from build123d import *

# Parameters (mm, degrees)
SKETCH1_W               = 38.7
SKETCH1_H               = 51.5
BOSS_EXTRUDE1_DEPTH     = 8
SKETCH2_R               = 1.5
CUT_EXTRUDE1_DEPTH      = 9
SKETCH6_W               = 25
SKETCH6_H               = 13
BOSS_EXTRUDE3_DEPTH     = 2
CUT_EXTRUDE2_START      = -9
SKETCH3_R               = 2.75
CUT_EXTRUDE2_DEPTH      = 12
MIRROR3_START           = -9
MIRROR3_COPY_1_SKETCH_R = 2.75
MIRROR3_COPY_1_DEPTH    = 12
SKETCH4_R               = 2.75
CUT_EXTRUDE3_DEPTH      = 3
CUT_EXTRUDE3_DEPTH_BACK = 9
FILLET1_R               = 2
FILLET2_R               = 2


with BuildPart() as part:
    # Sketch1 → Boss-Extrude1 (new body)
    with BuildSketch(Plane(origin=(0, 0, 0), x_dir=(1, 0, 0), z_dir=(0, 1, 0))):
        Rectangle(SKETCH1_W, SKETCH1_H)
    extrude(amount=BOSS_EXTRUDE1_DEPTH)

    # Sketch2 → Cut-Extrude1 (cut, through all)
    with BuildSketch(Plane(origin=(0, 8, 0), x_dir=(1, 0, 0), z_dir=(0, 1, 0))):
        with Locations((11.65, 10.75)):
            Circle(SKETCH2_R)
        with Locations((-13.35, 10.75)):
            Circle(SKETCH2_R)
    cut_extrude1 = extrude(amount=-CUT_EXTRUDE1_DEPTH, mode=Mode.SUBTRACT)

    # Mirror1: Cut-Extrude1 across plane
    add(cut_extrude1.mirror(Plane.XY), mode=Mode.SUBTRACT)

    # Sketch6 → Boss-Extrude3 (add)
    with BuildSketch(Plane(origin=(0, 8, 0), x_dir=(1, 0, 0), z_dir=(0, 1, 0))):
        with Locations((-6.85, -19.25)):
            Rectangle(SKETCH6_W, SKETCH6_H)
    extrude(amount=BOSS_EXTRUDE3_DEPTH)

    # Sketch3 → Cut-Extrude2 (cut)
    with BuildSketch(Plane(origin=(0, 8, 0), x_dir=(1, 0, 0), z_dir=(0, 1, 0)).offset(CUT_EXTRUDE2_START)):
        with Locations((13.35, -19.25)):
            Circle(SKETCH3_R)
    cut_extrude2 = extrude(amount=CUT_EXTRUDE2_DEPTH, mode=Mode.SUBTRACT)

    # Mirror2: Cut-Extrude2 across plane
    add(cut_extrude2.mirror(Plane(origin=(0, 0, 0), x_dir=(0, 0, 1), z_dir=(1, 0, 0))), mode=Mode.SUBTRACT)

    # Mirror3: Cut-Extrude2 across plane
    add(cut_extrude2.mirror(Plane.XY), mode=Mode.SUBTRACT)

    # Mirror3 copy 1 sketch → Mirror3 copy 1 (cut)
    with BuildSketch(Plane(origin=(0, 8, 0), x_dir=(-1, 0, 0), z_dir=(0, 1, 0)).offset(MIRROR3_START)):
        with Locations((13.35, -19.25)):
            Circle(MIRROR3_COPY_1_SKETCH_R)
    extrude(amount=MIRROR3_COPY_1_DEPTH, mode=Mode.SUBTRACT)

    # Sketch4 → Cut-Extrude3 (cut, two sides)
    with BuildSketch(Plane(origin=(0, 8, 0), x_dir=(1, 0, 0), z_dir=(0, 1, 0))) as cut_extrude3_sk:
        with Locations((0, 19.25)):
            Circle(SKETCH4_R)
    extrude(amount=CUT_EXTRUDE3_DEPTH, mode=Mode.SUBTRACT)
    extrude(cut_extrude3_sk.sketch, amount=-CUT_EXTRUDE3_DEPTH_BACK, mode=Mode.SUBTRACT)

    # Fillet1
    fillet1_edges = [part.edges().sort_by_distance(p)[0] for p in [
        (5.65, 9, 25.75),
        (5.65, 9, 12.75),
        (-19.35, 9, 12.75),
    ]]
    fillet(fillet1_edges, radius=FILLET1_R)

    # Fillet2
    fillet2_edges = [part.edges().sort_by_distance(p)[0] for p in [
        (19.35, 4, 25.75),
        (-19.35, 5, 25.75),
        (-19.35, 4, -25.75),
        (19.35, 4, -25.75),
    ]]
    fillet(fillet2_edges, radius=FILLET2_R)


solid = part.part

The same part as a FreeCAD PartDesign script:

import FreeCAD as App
import Part
import Sketcher

V = App.Vector
Q = App.Units.Quantity


def edges_at(feature, points):
    """Names of the edges that pass closest to the given points."""
    edges = feature.Shape.Edges
    near = lambda p: min(range(len(edges)), key=lambda i: edges[i].distToShape(Part.Vertex(*p))[0])
    return sorted({f"Edge{near(p) + 1}" for p in points})


def add_polygon(sketch, points):
    """Adds a closed chain of lines whose ends are joined by coincident constraints."""
    first, n = sketch.GeometryCount, len(points)
    for a, b in zip(points, points[1:] + points[:1]):
        sketch.addGeometry(Part.LineSegment(App.Vector(*a, 0), App.Vector(*b, 0)), False)
    for i in range(n):
        sketch.addConstraint(Sketcher.Constraint("Coincident", first + i, 2, first + (i + 1) % n, 1))

doc = App.newDocument("Part")
body = doc.addObject("PartDesign::Body", "Body")

sketch1 = body.newObject("Sketcher::SketchObject", "Sketch")
sketch1.AttachmentSupport = (doc.getObject("XZ_Plane"), [""])
sketch1.MapMode = "FlatFace"
add_polygon(sketch1, [(-19, -26), (-19, 26), (19, 26), (19, -26)])
sketch1.addConstraint([
    Sketcher.Constraint("Vertical", 0),
    Sketcher.Constraint("Horizontal", 1),
    Sketcher.Constraint("Vertical", 2),
    Sketcher.Constraint("Horizontal", 3),
    Sketcher.Constraint("Symmetric", 0, 2, 2, 2, -1, 1),
    Sketcher.Constraint("DistanceX", 1, 1, 1, 2, Q("38.7 mm")),
    Sketcher.Constraint("DistanceY", 0, 1, 0, 2, Q("51.5 mm")),
])
pad1 = body.newObject("PartDesign::Pad", "Pad")
pad1.Profile = sketch1
pad1.Length = 8
pad1.Reversed = True

sketch2 = body.newObject("Sketcher::SketchObject", "Sketch001")
sketch2.AttachmentSupport = (doc.getObject("XZ_Plane"), [""])
sketch2.MapMode = "FlatFace"
sketch2.AttachmentOffset = App.Placement(V(0, 0, -8), App.Rotation())
sketch2.addGeometry([
    Part.Circle(V(11.7, -10.8, 0), V(0, 0, 1), 1.5),
    Part.Circle(V(-13.3, -10.8, 0), V(0, 0, 1), 1.5),
], False)
sketch2.addConstraint([
    Sketcher.Constraint("Equal", 0, 1),
    Sketcher.Constraint("Horizontal", 0, 3, 1, 3),
    Sketcher.Constraint("Diameter", 0, Q("3 mm")),
    Sketcher.Constraint("DistanceX", 1, 3, 0, 3, Q("25 mm")),
    Sketcher.Constraint("DistanceX", -1, 1, 0, 3, Q("11.65 mm")),
    Sketcher.Constraint("DistanceY", 0, 3, -1, 1, Q("10.75 mm")),
])
pocket1 = body.newObject("PartDesign::Pocket", "Pocket")
pocket1.Profile = sketch2
pocket1.Type = "ThroughAll"
pocket1.Reversed = True
doc.recompute()

mirrored = body.newObject("PartDesign::Mirrored", "Mirrored")
mirrored.Originals = [pocket1]
mirrored.MirrorPlane = (doc.getObject("XY_Plane"), [""])
body.Tip = mirrored

sketch3 = body.newObject("Sketcher::SketchObject", "Sketch002")
sketch3.AttachmentSupport = (doc.getObject("XZ_Plane"), [""])
sketch3.MapMode = "FlatFace"
sketch3.AttachmentOffset = App.Placement(V(0, 0, -8), App.Rotation())
add_polygon(sketch3, [(-19, 13), (-19, 26), (6, 26), (6, 13)])
sketch3.addConstraint([
    Sketcher.Constraint("Vertical", 0),
    Sketcher.Constraint("Horizontal", 1),
    Sketcher.Constraint("Vertical", 2),
    Sketcher.Constraint("Horizontal", 3),
    Sketcher.Constraint("DistanceX", 1, 1, 1, 2, Q("25 mm")),
    Sketcher.Constraint("DistanceY", 0, 1, 0, 2, Q("13 mm")),
    Sketcher.Constraint("DistanceX", 0, 2, -1, 1, Q("19.35 mm")),
    Sketcher.Constraint("DistanceY", -1, 1, 0, 2, Q("25.75 mm")),
])
pad2 = body.newObject("PartDesign::Pad", "Pad001")
pad2.Profile = sketch3
pad2.Length = 2
pad2.Reversed = True

sketch4 = body.newObject("Sketcher::SketchObject", "Sketch003")
sketch4.AttachmentSupport = (doc.getObject("XZ_Plane"), [""])
sketch4.MapMode = "FlatFace"
sketch4.AttachmentOffset = App.Placement(V(0, 0, 1), App.Rotation())
sketch4.addGeometry(Part.Circle(V(13.3, 19.2, 0), V(0, 0, 1), 2.8), False)
sketch4.addConstraint([
    Sketcher.Constraint("Diameter", 0, Q("5.5 mm")),
    Sketcher.Constraint("DistanceX", -1, 1, 0, 3, Q("13.35 mm")),
    Sketcher.Constraint("DistanceY", -1, 1, 0, 3, Q("19.25 mm")),
])
pocket2 = body.newObject("PartDesign::Pocket", "Pocket001")
pocket2.Profile = sketch4
pocket2.Length = 12
doc.recompute()

mirrored2 = body.newObject("PartDesign::Mirrored", "Mirrored001")
mirrored2.Originals = [pocket2]
mirrored2.MirrorPlane = (doc.getObject("YZ_Plane"), [""])
body.Tip = mirrored2
doc.recompute()

mirrored3 = body.newObject("PartDesign::Mirrored", "Mirrored002")
mirrored3.Originals = [pocket2]
mirrored3.MirrorPlane = (doc.getObject("XY_Plane"), [""])
body.Tip = mirrored3

sketch5 = body.newObject("Sketcher::SketchObject", "Sketch004")
sketch5.AttachmentSupport = (doc.getObject("XZ_Plane"), [""])
sketch5.MapMode = "FlatFace"
sketch5.AttachmentOffset = App.Placement(V(0, 0, 1), App.Rotation())
sketch5.addGeometry(Part.Circle(V(-13.3, -19.2, 0), V(0, 0, 1), 2.8), False)
sketch5.addConstraint([
    Sketcher.Constraint("Diameter", 0, Q("5.5 mm")),
    Sketcher.Constraint("DistanceX", 0, 3, -1, 1, Q("13.35 mm")),
    Sketcher.Constraint("DistanceY", 0, 3, -1, 1, Q("19.25 mm")),
])
pocket3 = body.newObject("PartDesign::Pocket", "Pocket002")
pocket3.Profile = sketch5
pocket3.Length = 12

sketch6 = body.newObject("Sketcher::SketchObject", "Sketch005")
sketch6.AttachmentSupport = (doc.getObject("XZ_Plane"), [""])
sketch6.MapMode = "FlatFace"
sketch6.AttachmentOffset = App.Placement(V(0, 0, -8), App.Rotation())
sketch6.addGeometry(Part.Circle(V(0, -19.2, 0), V(0, 0, 1), 2.8), False)
sketch6.addConstraint([
    Sketcher.Constraint("PointOnObject", 0, 3, -2),
    Sketcher.Constraint("Diameter", 0, Q("5.5 mm")),
    Sketcher.Constraint("DistanceY", 0, 3, -1, 1, Q("19.25 mm")),
])
pocket4 = body.newObject("PartDesign::Pocket", "Pocket003")
pocket4.Profile = sketch6
pocket4.Type = "ThroughAll"
pocket4.Midplane = True
doc.recompute()

fillet = body.newObject("PartDesign::Fillet", "Fillet")
fillet.Base = (pocket4, edges_at(pocket4, [(5.65, 9, 25.75), (5.65, 9, 12.75), (-19.35, 9, 12.75)]))
fillet.Radius = 2
doc.recompute()

fillet2 = body.newObject("PartDesign::Fillet", "Fillet001")
fillet2.Base = (fillet, edges_at(fillet, [
    (19.35, 4, 25.75),
    (-19.35, 5, 25.75),
    (-19.35, 4, -25.75),
    (19.35, 4, -25.75),
]))
fillet2.Radius = 2

doc.recompute()
